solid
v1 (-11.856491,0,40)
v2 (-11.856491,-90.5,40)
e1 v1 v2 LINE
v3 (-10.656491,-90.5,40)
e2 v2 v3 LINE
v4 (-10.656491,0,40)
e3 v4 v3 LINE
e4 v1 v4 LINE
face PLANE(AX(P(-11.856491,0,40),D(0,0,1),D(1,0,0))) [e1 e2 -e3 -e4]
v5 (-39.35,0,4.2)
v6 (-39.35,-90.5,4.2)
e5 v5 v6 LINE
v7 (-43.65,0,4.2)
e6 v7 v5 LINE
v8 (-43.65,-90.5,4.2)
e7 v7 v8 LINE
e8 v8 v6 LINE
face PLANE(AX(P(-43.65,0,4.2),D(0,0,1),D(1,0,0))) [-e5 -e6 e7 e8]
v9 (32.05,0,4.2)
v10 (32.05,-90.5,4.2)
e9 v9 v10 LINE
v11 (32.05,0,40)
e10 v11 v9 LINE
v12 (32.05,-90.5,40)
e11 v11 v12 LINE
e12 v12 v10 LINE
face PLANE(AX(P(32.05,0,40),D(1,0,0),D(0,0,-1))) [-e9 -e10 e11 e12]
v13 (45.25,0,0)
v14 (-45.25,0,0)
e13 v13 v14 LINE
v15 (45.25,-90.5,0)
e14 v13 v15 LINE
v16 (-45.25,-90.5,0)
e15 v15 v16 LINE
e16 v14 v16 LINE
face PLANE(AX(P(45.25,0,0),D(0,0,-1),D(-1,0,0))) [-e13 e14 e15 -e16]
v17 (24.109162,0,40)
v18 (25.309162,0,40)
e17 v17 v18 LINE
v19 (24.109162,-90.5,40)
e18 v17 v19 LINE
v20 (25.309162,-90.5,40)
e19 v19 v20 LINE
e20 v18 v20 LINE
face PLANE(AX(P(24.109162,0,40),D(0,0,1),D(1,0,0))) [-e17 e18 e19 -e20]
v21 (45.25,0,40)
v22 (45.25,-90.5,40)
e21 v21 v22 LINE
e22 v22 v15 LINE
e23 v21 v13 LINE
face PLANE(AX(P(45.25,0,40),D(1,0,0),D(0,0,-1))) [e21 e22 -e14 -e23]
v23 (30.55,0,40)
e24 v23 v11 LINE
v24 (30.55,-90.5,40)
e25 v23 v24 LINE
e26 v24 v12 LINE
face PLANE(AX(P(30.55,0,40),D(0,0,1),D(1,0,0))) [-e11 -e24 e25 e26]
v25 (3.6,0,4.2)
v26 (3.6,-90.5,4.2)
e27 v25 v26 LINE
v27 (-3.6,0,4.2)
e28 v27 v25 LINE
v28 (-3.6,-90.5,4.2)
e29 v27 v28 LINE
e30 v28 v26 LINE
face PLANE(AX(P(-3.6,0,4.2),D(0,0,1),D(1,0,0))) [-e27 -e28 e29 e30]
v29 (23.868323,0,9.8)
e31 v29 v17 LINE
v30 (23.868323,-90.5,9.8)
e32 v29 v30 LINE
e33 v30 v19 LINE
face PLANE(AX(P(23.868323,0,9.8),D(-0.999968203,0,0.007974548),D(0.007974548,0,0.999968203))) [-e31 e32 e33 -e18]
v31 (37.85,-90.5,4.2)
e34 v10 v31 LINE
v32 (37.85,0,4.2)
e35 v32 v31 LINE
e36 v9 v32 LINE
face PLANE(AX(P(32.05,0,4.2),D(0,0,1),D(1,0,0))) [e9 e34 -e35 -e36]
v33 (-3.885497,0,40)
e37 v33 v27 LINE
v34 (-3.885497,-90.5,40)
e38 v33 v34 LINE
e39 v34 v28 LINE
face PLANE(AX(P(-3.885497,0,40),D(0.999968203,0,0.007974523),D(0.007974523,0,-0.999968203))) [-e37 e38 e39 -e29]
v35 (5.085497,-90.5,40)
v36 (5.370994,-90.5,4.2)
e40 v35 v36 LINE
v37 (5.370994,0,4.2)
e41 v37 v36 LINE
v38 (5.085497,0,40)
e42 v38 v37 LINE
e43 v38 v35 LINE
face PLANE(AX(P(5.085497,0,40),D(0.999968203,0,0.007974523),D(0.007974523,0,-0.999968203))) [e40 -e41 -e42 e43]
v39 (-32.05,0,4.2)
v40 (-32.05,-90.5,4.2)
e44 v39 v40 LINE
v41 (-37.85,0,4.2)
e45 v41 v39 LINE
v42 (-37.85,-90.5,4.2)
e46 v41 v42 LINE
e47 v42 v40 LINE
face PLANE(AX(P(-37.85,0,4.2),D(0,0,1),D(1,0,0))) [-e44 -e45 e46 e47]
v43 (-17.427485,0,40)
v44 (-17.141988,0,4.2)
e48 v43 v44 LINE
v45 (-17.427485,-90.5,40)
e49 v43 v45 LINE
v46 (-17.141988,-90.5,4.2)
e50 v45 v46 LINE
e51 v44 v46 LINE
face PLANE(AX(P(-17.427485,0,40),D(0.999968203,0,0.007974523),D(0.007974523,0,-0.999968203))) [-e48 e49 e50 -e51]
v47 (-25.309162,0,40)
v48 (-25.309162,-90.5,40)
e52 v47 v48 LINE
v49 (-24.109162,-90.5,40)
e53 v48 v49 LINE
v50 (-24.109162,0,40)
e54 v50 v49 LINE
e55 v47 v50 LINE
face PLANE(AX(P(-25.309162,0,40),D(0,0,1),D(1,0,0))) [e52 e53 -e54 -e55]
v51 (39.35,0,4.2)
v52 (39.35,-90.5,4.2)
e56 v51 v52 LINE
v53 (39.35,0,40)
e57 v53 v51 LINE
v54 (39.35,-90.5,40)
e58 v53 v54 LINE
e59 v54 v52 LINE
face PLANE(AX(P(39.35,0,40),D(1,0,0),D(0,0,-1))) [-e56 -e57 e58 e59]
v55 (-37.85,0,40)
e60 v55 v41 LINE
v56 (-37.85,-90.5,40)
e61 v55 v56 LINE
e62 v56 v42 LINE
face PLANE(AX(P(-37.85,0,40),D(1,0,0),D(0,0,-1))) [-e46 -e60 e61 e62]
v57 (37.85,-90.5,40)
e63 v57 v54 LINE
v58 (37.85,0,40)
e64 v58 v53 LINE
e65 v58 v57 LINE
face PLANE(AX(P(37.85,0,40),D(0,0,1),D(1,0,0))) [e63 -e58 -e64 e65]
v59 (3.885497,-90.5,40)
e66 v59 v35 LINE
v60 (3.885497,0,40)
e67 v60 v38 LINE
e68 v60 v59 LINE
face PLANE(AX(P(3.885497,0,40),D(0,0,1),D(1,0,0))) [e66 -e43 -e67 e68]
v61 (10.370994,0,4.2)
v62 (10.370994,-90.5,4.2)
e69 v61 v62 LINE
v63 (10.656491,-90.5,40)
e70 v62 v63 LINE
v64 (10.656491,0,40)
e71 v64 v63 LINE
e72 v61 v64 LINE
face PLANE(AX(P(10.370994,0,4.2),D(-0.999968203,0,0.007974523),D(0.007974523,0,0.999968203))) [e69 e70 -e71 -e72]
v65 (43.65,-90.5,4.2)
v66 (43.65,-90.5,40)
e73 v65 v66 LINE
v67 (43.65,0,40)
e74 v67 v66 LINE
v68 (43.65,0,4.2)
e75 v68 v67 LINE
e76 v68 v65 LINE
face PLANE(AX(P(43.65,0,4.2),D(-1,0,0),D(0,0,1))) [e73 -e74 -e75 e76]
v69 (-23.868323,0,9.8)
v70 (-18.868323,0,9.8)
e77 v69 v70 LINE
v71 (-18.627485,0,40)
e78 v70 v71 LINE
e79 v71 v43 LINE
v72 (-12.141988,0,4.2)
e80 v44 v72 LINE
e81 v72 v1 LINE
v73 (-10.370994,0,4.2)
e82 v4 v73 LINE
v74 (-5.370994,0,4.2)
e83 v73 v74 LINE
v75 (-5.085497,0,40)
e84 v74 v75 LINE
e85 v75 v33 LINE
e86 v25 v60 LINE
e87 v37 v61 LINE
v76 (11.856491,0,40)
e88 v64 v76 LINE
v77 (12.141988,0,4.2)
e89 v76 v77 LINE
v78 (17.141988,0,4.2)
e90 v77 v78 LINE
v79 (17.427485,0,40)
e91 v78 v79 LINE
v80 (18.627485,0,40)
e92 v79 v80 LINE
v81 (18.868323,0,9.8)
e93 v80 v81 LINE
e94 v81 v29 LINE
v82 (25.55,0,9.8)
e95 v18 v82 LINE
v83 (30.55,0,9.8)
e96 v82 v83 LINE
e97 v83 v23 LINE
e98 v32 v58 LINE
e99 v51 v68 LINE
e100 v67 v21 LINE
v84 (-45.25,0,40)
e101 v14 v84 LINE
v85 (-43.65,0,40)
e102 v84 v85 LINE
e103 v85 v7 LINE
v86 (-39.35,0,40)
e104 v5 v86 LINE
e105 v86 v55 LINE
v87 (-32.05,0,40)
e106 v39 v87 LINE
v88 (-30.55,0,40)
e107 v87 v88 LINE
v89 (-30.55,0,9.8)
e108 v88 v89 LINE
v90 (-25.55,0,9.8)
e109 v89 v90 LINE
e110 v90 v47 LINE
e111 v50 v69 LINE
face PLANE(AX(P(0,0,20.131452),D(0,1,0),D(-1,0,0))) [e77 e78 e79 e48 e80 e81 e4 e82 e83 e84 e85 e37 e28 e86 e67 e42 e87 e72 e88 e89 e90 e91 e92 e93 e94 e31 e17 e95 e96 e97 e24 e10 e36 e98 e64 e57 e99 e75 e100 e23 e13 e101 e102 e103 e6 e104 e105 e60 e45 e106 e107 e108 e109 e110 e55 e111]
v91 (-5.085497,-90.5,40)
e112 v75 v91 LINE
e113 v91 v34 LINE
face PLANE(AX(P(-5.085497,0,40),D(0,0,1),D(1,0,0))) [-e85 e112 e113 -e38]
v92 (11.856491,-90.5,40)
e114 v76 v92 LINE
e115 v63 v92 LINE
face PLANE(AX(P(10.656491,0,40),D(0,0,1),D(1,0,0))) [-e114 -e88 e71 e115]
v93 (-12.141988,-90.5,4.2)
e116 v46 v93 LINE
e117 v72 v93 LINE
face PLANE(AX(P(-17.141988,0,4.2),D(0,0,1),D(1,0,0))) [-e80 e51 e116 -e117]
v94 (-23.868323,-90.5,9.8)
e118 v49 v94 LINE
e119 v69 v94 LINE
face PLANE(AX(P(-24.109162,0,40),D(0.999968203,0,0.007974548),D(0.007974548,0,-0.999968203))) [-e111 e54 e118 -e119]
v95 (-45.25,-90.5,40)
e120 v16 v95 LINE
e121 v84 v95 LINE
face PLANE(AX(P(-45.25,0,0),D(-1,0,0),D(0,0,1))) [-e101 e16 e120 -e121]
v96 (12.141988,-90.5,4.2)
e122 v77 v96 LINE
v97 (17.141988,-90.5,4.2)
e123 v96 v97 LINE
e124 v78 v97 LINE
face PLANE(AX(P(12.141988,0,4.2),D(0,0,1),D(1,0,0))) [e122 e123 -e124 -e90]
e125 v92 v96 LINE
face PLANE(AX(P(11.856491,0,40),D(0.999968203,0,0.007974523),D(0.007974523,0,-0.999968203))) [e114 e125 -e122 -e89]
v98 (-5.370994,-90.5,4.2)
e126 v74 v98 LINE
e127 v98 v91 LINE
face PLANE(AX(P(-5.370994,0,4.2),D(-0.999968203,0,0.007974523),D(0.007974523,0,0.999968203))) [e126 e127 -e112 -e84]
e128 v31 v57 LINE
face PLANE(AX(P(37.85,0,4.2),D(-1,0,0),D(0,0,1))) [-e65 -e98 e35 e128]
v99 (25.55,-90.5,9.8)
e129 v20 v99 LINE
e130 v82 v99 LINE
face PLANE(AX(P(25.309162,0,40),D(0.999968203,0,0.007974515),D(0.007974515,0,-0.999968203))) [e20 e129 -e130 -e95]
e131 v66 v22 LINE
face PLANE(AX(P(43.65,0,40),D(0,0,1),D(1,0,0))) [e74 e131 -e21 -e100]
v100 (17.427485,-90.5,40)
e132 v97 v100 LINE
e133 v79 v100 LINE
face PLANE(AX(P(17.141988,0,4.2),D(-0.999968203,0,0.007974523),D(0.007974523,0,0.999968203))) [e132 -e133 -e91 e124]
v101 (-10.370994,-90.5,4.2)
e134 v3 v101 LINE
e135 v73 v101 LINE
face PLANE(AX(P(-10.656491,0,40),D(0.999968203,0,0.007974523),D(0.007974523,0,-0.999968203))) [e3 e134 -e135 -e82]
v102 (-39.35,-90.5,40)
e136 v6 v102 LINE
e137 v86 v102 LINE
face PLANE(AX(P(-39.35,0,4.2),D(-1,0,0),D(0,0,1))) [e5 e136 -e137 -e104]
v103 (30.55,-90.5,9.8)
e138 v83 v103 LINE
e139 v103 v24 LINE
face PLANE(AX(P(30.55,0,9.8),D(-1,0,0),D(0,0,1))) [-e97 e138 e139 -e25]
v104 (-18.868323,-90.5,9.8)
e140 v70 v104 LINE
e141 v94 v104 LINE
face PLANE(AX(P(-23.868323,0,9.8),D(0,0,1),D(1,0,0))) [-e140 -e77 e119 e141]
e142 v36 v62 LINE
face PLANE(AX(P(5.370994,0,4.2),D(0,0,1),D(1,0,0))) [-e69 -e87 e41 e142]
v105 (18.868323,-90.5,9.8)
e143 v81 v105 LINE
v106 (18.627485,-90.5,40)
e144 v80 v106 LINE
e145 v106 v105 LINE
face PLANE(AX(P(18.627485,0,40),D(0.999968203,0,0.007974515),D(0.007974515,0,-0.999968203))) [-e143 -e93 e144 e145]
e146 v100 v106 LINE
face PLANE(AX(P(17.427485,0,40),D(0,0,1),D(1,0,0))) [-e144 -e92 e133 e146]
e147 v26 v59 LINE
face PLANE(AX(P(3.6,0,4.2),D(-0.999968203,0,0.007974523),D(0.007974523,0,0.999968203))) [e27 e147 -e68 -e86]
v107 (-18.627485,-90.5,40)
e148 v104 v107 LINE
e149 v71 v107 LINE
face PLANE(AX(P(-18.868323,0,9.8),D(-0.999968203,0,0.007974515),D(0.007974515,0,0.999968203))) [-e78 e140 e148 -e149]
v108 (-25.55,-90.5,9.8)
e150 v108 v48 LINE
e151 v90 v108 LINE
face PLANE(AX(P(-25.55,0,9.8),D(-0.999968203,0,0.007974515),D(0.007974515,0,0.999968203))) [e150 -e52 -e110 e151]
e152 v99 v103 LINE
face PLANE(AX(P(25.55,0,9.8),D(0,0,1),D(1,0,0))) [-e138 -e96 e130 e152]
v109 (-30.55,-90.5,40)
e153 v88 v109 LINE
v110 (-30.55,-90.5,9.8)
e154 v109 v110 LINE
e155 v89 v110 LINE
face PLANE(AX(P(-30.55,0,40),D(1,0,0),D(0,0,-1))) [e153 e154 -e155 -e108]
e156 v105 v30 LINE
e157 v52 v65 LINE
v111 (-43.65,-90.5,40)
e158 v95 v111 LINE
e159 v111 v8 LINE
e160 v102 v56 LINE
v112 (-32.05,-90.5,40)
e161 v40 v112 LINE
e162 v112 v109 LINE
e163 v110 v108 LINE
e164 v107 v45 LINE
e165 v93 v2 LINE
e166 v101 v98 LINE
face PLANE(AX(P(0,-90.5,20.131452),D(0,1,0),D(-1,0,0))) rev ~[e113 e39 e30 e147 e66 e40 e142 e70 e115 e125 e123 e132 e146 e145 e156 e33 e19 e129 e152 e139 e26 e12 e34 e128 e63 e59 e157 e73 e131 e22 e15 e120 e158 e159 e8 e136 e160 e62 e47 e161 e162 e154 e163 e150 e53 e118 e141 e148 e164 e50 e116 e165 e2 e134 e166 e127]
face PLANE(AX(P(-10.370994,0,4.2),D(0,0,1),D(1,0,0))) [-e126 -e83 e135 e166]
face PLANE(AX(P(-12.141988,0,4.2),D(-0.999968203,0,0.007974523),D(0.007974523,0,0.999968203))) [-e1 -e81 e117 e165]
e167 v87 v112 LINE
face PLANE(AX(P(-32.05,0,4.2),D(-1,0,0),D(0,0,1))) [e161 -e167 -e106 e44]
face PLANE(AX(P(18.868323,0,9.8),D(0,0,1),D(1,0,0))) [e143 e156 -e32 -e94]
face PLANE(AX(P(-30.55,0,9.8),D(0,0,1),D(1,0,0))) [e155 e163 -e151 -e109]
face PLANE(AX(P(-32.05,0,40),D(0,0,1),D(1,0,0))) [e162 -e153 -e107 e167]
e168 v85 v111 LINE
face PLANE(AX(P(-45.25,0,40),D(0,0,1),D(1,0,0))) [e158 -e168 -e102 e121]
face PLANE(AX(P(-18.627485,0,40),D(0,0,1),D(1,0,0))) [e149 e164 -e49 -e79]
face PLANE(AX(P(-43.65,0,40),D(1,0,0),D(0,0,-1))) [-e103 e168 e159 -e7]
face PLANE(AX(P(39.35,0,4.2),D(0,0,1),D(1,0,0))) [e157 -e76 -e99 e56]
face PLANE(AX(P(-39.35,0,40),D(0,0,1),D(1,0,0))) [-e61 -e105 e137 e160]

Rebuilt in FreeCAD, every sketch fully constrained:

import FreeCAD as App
import Part
import Sketcher
from FreeCAD import Vector


def add_polygon(sketch, points):
    """Adds a closed chain of lines whose ends are joined by coincident constraints."""
    first, n = sketch.GeometryCount, len(points)
    for a, b in zip(points, points[1:] + points[:1]):
        sketch.addGeometry(Part.LineSegment(App.Vector(*a, 0), App.Vector(*b, 0)), False)
    for i in range(n):
        sketch.addConstraint(Sketcher.Constraint("Coincident", first + i, 2, first + (i + 1) % n, 1))

doc = App.newDocument("Part")
body = doc.addObject("PartDesign::Body", "Body")

sketch1 = body.newObject("Sketcher::SketchObject", "Sketch")
sketch1.AttachmentSupport = (doc.getObject("XZ_Plane"), [""])
sketch1.MapMode = "FlatFace"
add_polygon(sketch1, [(-45.25, 40), (-45.25, 0), (45.25, 0), (45.25, 40), (43.65, 40), (43.65, 4.2), (39.35, 4.2), (39.35, 40), (37.85, 40), (37.85, 4.2), (32.05, 4.2), (32.05, 40), (30.55, 40), (30.55, 9.8), (25.55, 9.8), (25.309162, 40), (24.109162, 40), (23.868323, 9.8), (18.868323, 9.8), (18.627485, 40), (17.427485, 40), (17.141988, 4.2), (12.141988, 4.2), (11.856491, 40), (10.656491, 40), (10.370994, 4.2), (5.370994, 4.2), (5.085497, 40), (3.885497, 40), (3.6, 4.2), (-3.6, 4.2), (-3.885497, 40), (-5.085497, 40), (-5.370994, 4.2), (-10.370994, 4.2), (-10.656491, 40), (-11.856491, 40), (-12.141988, 4.2), (-17.141988, 4.2), (-17.427485, 40), (-18.627485, 40), (-18.868323, 9.8), (-23.868323, 9.8), (-24.109162, 40), (-25.309162, 40), (-25.55, 9.8), (-30.55, 9.8), (-30.55, 40), (-32.05, 40), (-32.05, 4.2), (-37.85, 4.2), (-37.85, 40), (-39.35, 40), (-39.35, 4.2), (-43.65, 4.2), (-43.65, 40)])
sketch1.addConstraint([
    Sketcher.Constraint("Vertical", 0),
    Sketcher.Constraint("Horizontal", 1),
    Sketcher.Constraint("Vertical", 2),
    Sketcher.Constraint("Horizontal", 3),
    Sketcher.Constraint("Vertical", 4),
    Sketcher.Constraint("Horizontal", 5),
    Sketcher.Constraint("Vertical", 6),
    Sketcher.Constraint("Horizontal", 7),
    Sketcher.Constraint("Vertical", 8),
    Sketcher.Constraint("Horizontal", 9),
    Sketcher.Constraint("Vertical", 10),
    Sketcher.Constraint("Horizontal", 11),
    Sketcher.Constraint("Vertical", 12),
    Sketcher.Constraint("Horizontal", 13),
    Sketcher.Constraint("Horizontal", 15),
    Sketcher.Constraint("Horizontal", 17),
    Sketcher.Constraint("Horizontal", 19),
    Sketcher.Constraint("Horizontal", 21),
    Sketcher.Constraint("Horizontal", 23),
    Sketcher.Constraint("Horizontal", 25),
    Sketcher.Constraint("Horizontal", 27),
    Sketcher.Constraint("Horizontal", 29),
    Sketcher.Constraint("Horizontal", 31),
    Sketcher.Constraint("Horizontal", 33),
    Sketcher.Constraint("Horizontal", 35),
    Sketcher.Constraint("Horizontal", 37),
    Sketcher.Constraint("Horizontal", 39),
    Sketcher.Constraint("Horizontal", 41),
    Sketcher.Constraint("Horizontal", 43),
    Sketcher.Constraint("Horizontal", 45),
    Sketcher.Constraint("Vertical", 46),
    Sketcher.Constraint("Horizontal", 47),
    Sketcher.Constraint("Vertical", 48),
    Sketcher.Constraint("Horizontal", 49),
    Sketcher.Constraint("Vertical", 50),
    Sketcher.Constraint("Horizontal", 51),
    Sketcher.Constraint("Vertical", 52),
    Sketcher.Constraint("Horizontal", 53),
    Sketcher.Constraint("Vertical", 54),
    Sketcher.Constraint("Horizontal", 55),
    Sketcher.Constraint("Symmetric", 0, 2, 1, 2, -1, 1),
    Sketcher.Constraint("Symmetric", 27, 2, 30, 2, -2),
    Sketcher.Constraint("Symmetric", 25, 2, 32, 2, -2),
    Sketcher.Constraint("Symmetric", 23, 2, 34, 2, -2),
    Sketcher.Constraint("Symmetric", 21, 2, 36, 2, -2),
    Sketcher.Constraint("Symmetric", 19, 2, 38, 2, -2),
    Sketcher.Constraint("Symmetric", 17, 2, 40, 2, -2),
    Sketcher.Constraint("Symmetric", 15, 2, 42, 2, -2),
    Sketcher.Constraint("Symmetric", 13, 2, 44, 2, -2),
    Sketcher.Constraint("Symmetric", 11, 2, 46, 2, -2),
    Sketcher.Constraint("Symmetric", 9, 2, 48, 2, -2),
    Sketcher.Constraint("Symmetric", 7, 2, 50, 2, -2),
    Sketcher.Constraint("Symmetric", 5, 2, 52, 2, -2),
    Sketcher.Constraint("Symmetric", 3, 2, 54, 2, -2),
    Sketcher.Constraint("Parallel", 14, 18),
    Sketcher.Constraint("Parallel", 16, 20),
    Sketcher.Constraint("Parallel", 18, 22),
    Sketcher.Constraint("Parallel", 20, 24),
    Sketcher.Constraint("Parallel", 22, 26),
    Sketcher.Constraint("Parallel", 24, 28),
    Sketcher.Constraint("Parallel", 26, 30),
    Sketcher.Constraint("Parallel", 28, 32),
    Sketcher.Constraint("Parallel", 30, 34),
    Sketcher.Constraint("Parallel", 32, 36),
    Sketcher.Constraint("Parallel", 34, 38),
    Sketcher.Constraint("Parallel", 36, 40),
    Sketcher.Constraint("Parallel", 38, 42),
    Sketcher.Constraint("Parallel", 40, 44),
    Sketcher.Constraint("Horizontal", 3, 2, 6, 2),
    Sketcher.Constraint("Horizontal", 5, 2, 8, 2),
    Sketcher.Constraint("Horizontal", 7, 2, 10, 2),
    Sketcher.Constraint("Horizontal", 11, 2, 14, 2),
    Sketcher.Constraint("Horizontal", 13, 2, 16, 2),
    Sketcher.Constraint("Horizontal", 15, 2, 18, 2),
    Sketcher.Constraint("Horizontal", 9, 2, 20, 2),
    Sketcher.Constraint("Horizontal", 19, 2, 22, 2),
    Sketcher.Constraint("Horizontal", 21, 2, 24, 2),
    Sketcher.Constraint("Horizontal", 23, 2, 26, 2),
    Sketcher.Constraint("Horizontal", 25, 2, 28, 2),
    Sketcher.Constraint("Equal", 7, 11),
    Sketcher.Constraint("Equal", 13, 17),
    Sketcher.Constraint("Equal", 15, 19),
    Sketcher.Constraint("Equal", 17, 21),
    Sketcher.Constraint("Equal", 19, 23),
    Sketcher.Constraint("Equal", 21, 25),
    Sketcher.Constraint("Equal", 23, 27),
    Sketcher.Constraint("Equal", 27, 31),
    Sketcher.Constraint("DistanceX", 13, 2, 13, 1, 5.0),
    Sketcher.Constraint("DistanceY", 0, 2, 0, 1, 40.0),
    Sketcher.Constraint("DistanceX", 1, 1, 1, 2, 90.5),
    Sketcher.Constraint("DistanceX", 3, 2, 3, 1, 1.6),
    Sketcher.Constraint("DistanceX", 5, 2, 5, 1, 4.3),
    Sketcher.Constraint("DistanceX", 7, 2, 7, 1, 1.5),
    Sketcher.Constraint("DistanceX", 9, 2, 9, 1, 5.8),
    Sketcher.Constraint("DistanceX", 15, 2, 15, 1, 1.2),
    Sketcher.Constraint("DistanceX", 29, 2, 29, 1, 7.2),
    Sketcher.Constraint("DistanceY", 4, 2, 4, 1, 35.8),
    Sketcher.Constraint("DistanceY", 12, 2, 12, 1, 30.2),
])
pad1 = body.newObject("PartDesign::Pad", "Pad")
pad1.Profile = sketch1
pad1.Length = 90.5

doc.recompute()
